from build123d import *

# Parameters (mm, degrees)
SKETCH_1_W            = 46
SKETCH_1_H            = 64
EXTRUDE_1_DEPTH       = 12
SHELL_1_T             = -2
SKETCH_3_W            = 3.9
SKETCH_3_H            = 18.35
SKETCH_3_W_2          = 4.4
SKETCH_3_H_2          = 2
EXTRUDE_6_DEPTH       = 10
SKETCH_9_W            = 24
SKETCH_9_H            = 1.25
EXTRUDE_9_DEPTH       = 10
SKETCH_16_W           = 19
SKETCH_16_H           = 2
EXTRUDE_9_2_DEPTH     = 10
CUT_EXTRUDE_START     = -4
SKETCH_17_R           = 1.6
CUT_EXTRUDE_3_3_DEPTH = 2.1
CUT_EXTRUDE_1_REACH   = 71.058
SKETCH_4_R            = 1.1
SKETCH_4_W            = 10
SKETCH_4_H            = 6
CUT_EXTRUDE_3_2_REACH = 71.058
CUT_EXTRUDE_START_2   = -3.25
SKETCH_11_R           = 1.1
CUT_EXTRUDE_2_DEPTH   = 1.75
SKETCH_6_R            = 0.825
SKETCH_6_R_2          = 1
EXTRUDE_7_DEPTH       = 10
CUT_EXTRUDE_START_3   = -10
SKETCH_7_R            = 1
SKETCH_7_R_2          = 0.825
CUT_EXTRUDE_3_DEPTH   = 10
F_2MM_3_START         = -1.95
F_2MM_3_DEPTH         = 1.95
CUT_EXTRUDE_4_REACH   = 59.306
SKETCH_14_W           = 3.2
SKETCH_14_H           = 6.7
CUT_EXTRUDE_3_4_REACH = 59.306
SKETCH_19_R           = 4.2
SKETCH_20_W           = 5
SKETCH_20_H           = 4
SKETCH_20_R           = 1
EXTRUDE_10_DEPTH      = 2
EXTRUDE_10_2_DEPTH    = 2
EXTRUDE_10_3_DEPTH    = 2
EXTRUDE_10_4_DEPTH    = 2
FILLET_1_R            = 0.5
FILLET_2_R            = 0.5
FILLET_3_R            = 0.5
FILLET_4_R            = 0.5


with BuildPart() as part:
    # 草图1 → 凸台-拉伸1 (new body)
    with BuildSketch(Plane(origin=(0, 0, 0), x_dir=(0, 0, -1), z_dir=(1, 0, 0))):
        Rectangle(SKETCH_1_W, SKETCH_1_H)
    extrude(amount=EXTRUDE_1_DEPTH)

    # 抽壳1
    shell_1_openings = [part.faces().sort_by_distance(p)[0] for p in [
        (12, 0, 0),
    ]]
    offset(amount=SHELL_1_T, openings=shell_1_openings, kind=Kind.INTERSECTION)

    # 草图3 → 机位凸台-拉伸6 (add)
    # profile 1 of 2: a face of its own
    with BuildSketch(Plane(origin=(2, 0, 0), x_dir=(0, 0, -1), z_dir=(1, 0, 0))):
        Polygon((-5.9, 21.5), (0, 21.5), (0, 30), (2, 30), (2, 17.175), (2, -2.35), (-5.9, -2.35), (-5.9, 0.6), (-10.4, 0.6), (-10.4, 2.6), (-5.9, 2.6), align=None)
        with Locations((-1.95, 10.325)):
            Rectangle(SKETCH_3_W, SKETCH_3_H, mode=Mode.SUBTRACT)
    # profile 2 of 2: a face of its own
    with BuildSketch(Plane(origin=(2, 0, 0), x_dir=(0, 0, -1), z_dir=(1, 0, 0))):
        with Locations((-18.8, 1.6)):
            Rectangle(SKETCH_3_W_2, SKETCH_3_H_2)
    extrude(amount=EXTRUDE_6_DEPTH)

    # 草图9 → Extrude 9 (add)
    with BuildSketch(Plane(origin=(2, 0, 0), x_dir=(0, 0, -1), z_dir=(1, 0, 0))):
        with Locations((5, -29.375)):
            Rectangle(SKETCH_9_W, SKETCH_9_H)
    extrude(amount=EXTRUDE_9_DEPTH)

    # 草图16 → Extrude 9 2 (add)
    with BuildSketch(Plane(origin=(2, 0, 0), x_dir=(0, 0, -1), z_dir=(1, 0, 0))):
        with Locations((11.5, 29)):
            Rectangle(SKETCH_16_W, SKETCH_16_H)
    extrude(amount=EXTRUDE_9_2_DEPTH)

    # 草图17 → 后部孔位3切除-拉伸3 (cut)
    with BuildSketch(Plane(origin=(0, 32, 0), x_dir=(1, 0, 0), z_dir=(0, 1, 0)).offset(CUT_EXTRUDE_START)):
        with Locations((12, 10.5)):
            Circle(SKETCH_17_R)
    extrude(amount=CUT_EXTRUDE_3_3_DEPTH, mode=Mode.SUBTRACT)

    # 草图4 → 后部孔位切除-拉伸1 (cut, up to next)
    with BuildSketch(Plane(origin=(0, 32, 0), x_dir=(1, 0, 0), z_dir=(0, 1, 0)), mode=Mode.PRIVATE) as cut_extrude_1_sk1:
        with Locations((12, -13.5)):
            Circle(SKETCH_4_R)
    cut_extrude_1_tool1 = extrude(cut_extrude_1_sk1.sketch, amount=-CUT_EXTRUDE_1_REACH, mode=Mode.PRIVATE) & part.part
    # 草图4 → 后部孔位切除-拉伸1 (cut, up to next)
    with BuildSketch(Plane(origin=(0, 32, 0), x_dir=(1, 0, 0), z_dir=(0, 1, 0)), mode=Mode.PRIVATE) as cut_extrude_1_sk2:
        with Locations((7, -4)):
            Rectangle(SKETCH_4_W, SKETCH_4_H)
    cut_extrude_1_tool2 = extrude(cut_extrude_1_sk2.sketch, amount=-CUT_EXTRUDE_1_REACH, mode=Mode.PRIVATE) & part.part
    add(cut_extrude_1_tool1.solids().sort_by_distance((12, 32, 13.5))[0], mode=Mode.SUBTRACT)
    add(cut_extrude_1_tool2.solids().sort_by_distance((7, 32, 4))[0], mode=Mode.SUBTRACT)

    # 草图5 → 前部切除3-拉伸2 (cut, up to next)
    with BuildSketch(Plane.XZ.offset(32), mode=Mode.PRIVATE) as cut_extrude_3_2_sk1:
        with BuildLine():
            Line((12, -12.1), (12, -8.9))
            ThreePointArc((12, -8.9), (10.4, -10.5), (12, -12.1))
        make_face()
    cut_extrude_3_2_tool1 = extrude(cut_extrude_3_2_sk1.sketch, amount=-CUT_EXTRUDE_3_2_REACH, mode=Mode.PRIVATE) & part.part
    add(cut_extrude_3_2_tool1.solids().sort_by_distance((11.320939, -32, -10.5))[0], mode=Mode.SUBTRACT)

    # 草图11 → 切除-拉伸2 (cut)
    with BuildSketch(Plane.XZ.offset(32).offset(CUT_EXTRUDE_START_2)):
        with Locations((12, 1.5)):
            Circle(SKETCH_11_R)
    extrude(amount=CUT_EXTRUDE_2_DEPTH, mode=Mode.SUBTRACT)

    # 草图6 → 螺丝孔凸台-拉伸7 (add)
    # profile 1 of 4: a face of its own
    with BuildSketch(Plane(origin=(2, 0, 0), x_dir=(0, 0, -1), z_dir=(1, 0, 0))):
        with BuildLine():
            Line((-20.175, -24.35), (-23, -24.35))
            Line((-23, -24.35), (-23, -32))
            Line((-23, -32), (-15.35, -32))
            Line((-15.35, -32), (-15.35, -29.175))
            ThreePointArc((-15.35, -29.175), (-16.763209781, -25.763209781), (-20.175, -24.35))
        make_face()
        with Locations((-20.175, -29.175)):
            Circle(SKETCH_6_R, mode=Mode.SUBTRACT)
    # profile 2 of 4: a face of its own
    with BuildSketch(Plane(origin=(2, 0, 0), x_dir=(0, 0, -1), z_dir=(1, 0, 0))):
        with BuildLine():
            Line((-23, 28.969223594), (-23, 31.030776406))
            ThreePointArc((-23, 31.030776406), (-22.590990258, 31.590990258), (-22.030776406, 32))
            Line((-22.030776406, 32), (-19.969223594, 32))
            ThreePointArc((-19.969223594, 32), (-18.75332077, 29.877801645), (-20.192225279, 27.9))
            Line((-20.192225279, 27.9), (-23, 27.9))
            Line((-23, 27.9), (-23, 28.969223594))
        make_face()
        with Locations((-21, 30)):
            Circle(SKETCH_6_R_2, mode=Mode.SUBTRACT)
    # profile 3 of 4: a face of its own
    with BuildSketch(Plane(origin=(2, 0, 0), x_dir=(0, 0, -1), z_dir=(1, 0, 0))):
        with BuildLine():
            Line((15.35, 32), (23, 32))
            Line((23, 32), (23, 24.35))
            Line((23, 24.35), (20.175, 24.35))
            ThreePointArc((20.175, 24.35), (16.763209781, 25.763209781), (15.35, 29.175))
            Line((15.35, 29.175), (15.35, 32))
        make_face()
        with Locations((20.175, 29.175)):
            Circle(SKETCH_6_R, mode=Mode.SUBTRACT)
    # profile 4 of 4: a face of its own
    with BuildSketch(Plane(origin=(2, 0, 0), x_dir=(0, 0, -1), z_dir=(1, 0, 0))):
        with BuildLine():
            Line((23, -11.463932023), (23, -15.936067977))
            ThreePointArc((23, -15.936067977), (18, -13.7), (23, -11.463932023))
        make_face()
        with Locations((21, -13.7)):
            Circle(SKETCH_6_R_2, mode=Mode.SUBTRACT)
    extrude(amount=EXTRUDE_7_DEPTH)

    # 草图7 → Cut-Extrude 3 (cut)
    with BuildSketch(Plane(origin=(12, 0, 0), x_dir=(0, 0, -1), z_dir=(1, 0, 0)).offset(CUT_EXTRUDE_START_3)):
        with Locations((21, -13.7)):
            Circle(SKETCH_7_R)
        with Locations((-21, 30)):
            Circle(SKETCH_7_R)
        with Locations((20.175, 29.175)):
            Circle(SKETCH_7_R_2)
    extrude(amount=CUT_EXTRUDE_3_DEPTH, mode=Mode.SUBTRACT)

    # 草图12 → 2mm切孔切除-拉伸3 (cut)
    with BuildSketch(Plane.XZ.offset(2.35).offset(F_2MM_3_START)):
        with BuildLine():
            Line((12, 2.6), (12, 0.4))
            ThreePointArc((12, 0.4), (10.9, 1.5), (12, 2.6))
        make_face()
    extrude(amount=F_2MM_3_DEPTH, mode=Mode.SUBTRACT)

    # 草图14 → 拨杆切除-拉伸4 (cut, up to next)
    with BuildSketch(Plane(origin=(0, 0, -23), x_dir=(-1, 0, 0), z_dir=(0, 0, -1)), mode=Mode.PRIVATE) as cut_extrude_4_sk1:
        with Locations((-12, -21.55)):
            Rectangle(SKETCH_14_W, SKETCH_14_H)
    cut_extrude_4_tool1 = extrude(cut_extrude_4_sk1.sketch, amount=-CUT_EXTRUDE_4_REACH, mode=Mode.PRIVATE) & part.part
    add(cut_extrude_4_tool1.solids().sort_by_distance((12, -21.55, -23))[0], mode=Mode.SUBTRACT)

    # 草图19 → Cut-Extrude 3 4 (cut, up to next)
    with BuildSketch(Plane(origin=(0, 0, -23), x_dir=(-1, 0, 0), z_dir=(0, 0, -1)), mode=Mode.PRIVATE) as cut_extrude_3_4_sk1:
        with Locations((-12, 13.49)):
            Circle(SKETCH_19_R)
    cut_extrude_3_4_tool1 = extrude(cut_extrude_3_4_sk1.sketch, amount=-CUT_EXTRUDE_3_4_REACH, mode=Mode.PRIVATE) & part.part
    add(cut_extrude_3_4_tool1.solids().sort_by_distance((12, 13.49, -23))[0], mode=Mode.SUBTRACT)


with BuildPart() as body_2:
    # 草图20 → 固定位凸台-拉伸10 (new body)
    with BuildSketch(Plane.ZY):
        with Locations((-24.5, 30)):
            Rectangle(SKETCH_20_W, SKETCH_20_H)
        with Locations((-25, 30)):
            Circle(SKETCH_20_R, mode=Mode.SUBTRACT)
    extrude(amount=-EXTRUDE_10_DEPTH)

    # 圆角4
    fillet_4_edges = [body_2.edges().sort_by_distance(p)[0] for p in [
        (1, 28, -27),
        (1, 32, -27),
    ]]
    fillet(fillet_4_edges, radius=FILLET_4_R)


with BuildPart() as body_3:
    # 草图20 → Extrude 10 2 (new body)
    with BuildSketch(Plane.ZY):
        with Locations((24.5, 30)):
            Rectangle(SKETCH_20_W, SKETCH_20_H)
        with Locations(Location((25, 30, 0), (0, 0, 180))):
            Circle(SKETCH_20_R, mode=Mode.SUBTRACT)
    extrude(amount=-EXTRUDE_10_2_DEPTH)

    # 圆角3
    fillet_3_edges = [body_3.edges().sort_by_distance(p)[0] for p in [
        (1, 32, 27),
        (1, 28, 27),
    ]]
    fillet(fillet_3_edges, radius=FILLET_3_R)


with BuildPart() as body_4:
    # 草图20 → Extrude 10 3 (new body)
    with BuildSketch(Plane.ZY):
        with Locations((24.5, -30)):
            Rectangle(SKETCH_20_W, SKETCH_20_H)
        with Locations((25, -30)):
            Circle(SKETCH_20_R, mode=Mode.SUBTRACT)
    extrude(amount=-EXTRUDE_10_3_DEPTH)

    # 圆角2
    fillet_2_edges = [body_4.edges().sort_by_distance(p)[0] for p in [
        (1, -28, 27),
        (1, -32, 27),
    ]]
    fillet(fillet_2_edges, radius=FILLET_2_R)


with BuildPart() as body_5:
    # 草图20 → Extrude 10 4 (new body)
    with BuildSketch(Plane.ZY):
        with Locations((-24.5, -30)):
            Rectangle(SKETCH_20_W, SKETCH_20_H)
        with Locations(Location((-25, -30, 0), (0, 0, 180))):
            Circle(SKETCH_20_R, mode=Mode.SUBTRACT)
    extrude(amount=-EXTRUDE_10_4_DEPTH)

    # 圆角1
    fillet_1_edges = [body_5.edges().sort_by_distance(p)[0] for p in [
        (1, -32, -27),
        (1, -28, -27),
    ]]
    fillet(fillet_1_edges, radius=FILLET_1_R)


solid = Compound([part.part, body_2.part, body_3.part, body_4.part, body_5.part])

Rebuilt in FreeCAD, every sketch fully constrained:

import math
import FreeCAD as App
import Part
import Sketcher

V = App.Vector
Q = App.Units.Quantity


def edges_at(feature, points):
    """Names of the edges that pass closest to the given points."""
    edges = feature.Shape.Edges
    near = lambda p: min(range(len(edges)), key=lambda i: edges[i].distToShape(Part.Vertex(*p))[0])
    return sorted({f"Edge{near(p) + 1}" for p in points})


def faces_at(feature, points):
    """Names of the faces that lie closest to the given points."""
    faces = feature.Shape.Faces
    near = lambda p: min(range(len(faces)), key=lambda i: faces[i].distToShape(Part.Vertex(*p))[0])
    return sorted({f"Face{near(p) + 1}" for p in points})


def add_polygon(sketch, points):
    """Adds a closed chain of lines whose ends are joined by coincident constraints."""
    first, n = sketch.GeometryCount, len(points)
    for a, b in zip(points, points[1:] + points[:1]):
        sketch.addGeometry(Part.LineSegment(App.Vector(*a, 0), App.Vector(*b, 0)), False)
    for i in range(n):
        sketch.addConstraint(Sketcher.Constraint("Coincident", first + i, 2, first + (i + 1) % n, 1))

doc = App.newDocument("Part")
body = doc.addObject("PartDesign::Body", "Body")

sketch1 = doc.addObject("Sketcher::SketchObject", "Sketch")
body.addObject(sketch1)
sketch1.AttachmentSupport = (doc.YZ_Plane, [""])
sketch1.MapMode = "FlatFace"
add_polygon(sketch1, [(32, 23), (-32, 23), (-32, -23), (32, -23)])
sketch1.addConstraint([
    Sketcher.Constraint("Horizontal", 0),
    Sketcher.Constraint("Vertical", 1),
    Sketcher.Constraint("Horizontal", 2),
    Sketcher.Constraint("Vertical", 3),
    Sketcher.Constraint("Symmetric", 0, 2, 2, 2, -1, 1),
    Sketcher.Constraint("DistanceX", 0, 2, 0, 1, Q("64 mm")),
    Sketcher.Constraint("DistanceY", 1, 2, 1, 1, Q("46 mm")),
])
pad1 = doc.addObject("PartDesign::Pad", "Pad")
body.addObject(pad1)
pad1.Profile = sketch1
pad1.Length = 12
doc.recompute()

thickness = doc.addObject("PartDesign::Thickness", "Thickness")
body.addObject(thickness)
thickness.Base = (pad1, faces_at(pad1, [(12, 0, 0)]))
thickness.Value = 2
thickness.Reversed = True
thickness.Join = "Intersection"

sketch2 = doc.addObject("Sketcher::SketchObject", "Sketch001")
body.addObject(sketch2)
sketch2.AttachmentSupport = (doc.YZ_Plane, [""])
sketch2.MapMode = "FlatFace"
sketch2.AttachmentOffset = App.Placement(V(0, 0, 2), App.Rotation())
add_polygon(sketch2, [(21.5, 0), (21.5, 5.9), (2.6, 5.9), (2.6, 10.4), (0.6, 10.4), (0.6, 5.9), (-2.4, 5.9), (-2.4, -2), (30, -2), (30, 0)])
add_polygon(sketch2, [(1.1, 3.9), (19.5, 3.9), (19.5, 0), (1.1, 0)])
add_polygon(sketch2, [(2.6, 21), (0.6, 21), (0.6, 16.6), (2.6, 16.6)])
sketch2.addConstraint([
    Sketcher.Constraint("Vertical", 0),
    Sketcher.Constraint("Horizontal", 1),
    Sketcher.Constraint("Vertical", 2),
    Sketcher.Constraint("Horizontal", 3),
    Sketcher.Constraint("Vertical", 4),
    Sketcher.Constraint("Horizontal", 5),
    Sketcher.Constraint("Vertical", 6),
    Sketcher.Constraint("Horizontal", 7),
    Sketcher.Constraint("Vertical", 8),
    Sketcher.Constraint("Horizontal", 9),
    Sketcher.Constraint("Horizontal", 10),
    Sketcher.Constraint("Vertical", 11),
    Sketcher.Constraint("Horizontal", 12),
    Sketcher.Constraint("Vertical", 13),
    Sketcher.Constraint("Horizontal", 14),
    Sketcher.Constraint("Vertical", 15),
    Sketcher.Constraint("Horizontal", 16),
    Sketcher.Constraint("Vertical", 17),
    Sketcher.Constraint("PointOnObject", 8, 2, -1),
    Sketcher.Constraint("PointOnObject", 11, 2, -1),
    Sketcher.Constraint("Horizontal", 1, 2, 4, 2),
    Sketcher.Constraint("Vertical", 4, 2, 14, 2),
    Sketcher.Constraint("Vertical", 2, 2, 16, 2),
    Sketcher.Constraint("Equal", 16, 8),
    Sketcher.Constraint("DistanceX", 3, 2, 3, 1, Q("2 mm")),
    Sketcher.Constraint("DistanceX", 1, 2, 1, 1, Q("18.9 mm")),
    Sketcher.Constraint("DistanceX", 9, 2, 9, 1, Q("8.5 mm")),
    Sketcher.Constraint("DistanceY", 0, 1, 0, 2, Q("5.9 mm")),
    Sketcher.Constraint("DistanceY", 2, 1, 2, 2, Q("4.5 mm")),
    Sketcher.Constraint("DistanceY", 11, 2, 11, 1, Q("3.9 mm")),
    Sketcher.Constraint("DistanceY", 15, 2, 15, 1, Q("4.4 mm")),
    Sketcher.Constraint("DistanceX", -1, 1, 7, 2, Q("30 mm")),
    Sketcher.Constraint("DistanceY", -1, 1, 14, 2, Q("21 mm")),
    Sketcher.Constraint("DistanceX", 10, 2, 0, 2, Q("2 mm")),
    Sketcher.Constraint("DistanceX", 5, 2, 5, 1, Q("2.95 mm")),
    Sketcher.Constraint("DistanceX", 10, 1, 10, 2, Q("18.35 mm")),
])
pad2 = doc.addObject("PartDesign::Pad", "Pad001")
body.addObject(pad2)
pad2.Profile = sketch2
pad2.Length = 10

sketch3 = doc.addObject("Sketcher::SketchObject", "Sketch002")
body.addObject(sketch3)
sketch3.AttachmentSupport = (doc.YZ_Plane, [""])
sketch3.MapMode = "FlatFace"
sketch3.AttachmentOffset = App.Placement(V(0, 0, 2), App.Rotation())
add_polygon(sketch3, [(-28.8, 7), (-30, 7), (-30, -17), (-28.8, -17)])
sketch3.addConstraint([
    Sketcher.Constraint("Horizontal", 0),
    Sketcher.Constraint("Vertical", 1),
    Sketcher.Constraint("Horizontal", 2),
    Sketcher.Constraint("Vertical", 3),
    Sketcher.Constraint("DistanceY", 1, 2, 1, 1, Q("24 mm")),
    Sketcher.Constraint("DistanceX", 0, 2, -1, 1, Q("30 mm")),
    Sketcher.Constraint("DistanceY", -1, 1, 0, 2, Q("7 mm")),
    Sketcher.Constraint("DistanceX", 0, 2, 0, 1, Q("1.25 mm")),
])
pad3 = doc.addObject("PartDesign::Pad", "Pad002")
body.addObject(pad3)
pad3.Profile = sketch3
pad3.Length = 10

sketch4 = doc.addObject("Sketcher::SketchObject", "Sketch003")
body.addObject(sketch4)
sketch4.AttachmentSupport = (doc.YZ_Plane, [""])
sketch4.MapMode = "FlatFace"
sketch4.AttachmentOffset = App.Placement(V(0, 0, 2), App.Rotation())
add_polygon(sketch4, [(30, -2), (28, -2), (28, -21), (30, -21)])
sketch4.addConstraint([
    Sketcher.Constraint("Horizontal", 0),
    Sketcher.Constraint("Vertical", 1),
    Sketcher.Constraint("Horizontal", 2),
    Sketcher.Constraint("Vertical", 3),
    Sketcher.Constraint("DistanceX", 0, 2, 0, 1, Q("2 mm")),
    Sketcher.Constraint("DistanceY", 1, 2, 1, 1, Q("19 mm")),
    Sketcher.Constraint("DistanceX", -1, 1, 0, 2, Q("28 mm")),
    Sketcher.Constraint("DistanceY", 0, 2, -1, 1, Q("2 mm")),
])
pad4 = doc.addObject("PartDesign::Pad", "Pad003")
body.addObject(pad4)
pad4.Profile = sketch4
pad4.Length = 10

sketch5 = doc.addObject("Sketcher::SketchObject", "Sketch004")
body.addObject(sketch5)
sketch5.AttachmentSupport = (doc.XZ_Plane, [""])
sketch5.MapMode = "FlatFace"
sketch5.AttachmentOffset = App.Placement(V(0, 0, -28), App.Rotation())
sketch5.addGeometry(Part.Circle(V(12, -10.5, 0), V(0, 0, 1), 1.6), False)
sketch5.addConstraint([
    Sketcher.Constraint("Diameter", 0, Q("3.2 mm")),
    Sketcher.Constraint("DistanceX", -1, 1, 0, 3, Q("12 mm")),
    Sketcher.Constraint("DistanceY", 0, 3, -1, 1, Q("10.5 mm")),
])
pocket1 = doc.addObject("PartDesign::Pocket", "Pocket")
body.addObject(pocket1)
pocket1.Profile = sketch5
pocket1.Length = 2.1

sketch6 = doc.addObject("Sketcher::SketchObject", "Sketch005")
body.addObject(sketch6)
sketch6.AttachmentSupport = (doc.XZ_Plane, [""])
sketch6.MapMode = "FlatFace"
sketch6.AttachmentOffset = App.Placement(V(0, 0, -32), App.Rotation())
sketch6.addGeometry(Part.Circle(V(12, 13.5, 0), V(0, 0, 1), 1.1), False)
sketch6.addConstraint([
    Sketcher.Constraint("Diameter", 0, Q("2.2 mm")),
    Sketcher.Constraint("DistanceX", -1, 1, 0, 3, Q("12 mm")),
    Sketcher.Constraint("DistanceY", -1, 1, 0, 3, Q("13.5 mm")),
])
pocket2 = doc.addObject("PartDesign::Pocket", "Pocket001")
body.addObject(pocket2)
pocket2.Profile = sketch6
pocket2.Type = "UpToFirst"
pocket2.Reversed = True

sketch7 = doc.addObject("Sketcher::SketchObject", "Sketch006")
body.addObject(sketch7)
sketch7.AttachmentSupport = (doc.XZ_Plane, [""])
sketch7.MapMode = "FlatFace"
sketch7.AttachmentOffset = App.Placement(V(0, 0, -32), App.Rotation())
add_polygon(sketch7, [(2, 1), (2, 7), (12, 7), (12, 1)])
sketch7.addConstraint([
    Sketcher.Constraint("Vertical", 0),
    Sketcher.Constraint("Horizontal", 1),
    Sketcher.Constraint("Vertical", 2),
    Sketcher.Constraint("Horizontal", 3),
    Sketcher.Constraint("DistanceX", 1, 1, 1, 2, Q("10 mm")),
    Sketcher.Constraint("DistanceY", 0, 1, 0, 2, Q("6 mm")),
    Sketcher.Constraint("DistanceX", -1, 1, 0, 2, Q("2 mm")),
    Sketcher.Constraint("DistanceY", -1, 1, 0, 2, Q("7 mm")),
])
pocket3 = doc.addObject("PartDesign::Pocket", "Pocket002")
body.addObject(pocket3)
pocket3.Profile = sketch7
pocket3.Type = "UpToFirst"
pocket3.Reversed = True

sketch8 = doc.addObject("Sketcher::SketchObject", "Sketch007")
body.addObject(sketch8)
sketch8.AttachmentSupport = (doc.XZ_Plane, [""])
sketch8.MapMode = "FlatFace"
sketch8.AttachmentOffset = App.Placement(V(0, 0, 32), App.Rotation())
sketch8.addGeometry([
    Part.LineSegment(V(12, -12.1, 0), V(12, -8.9, 0)),
    Part.ArcOfCircle(Part.Circle(V(12, -10.5, 0), V(0, 0, 1), 1.6), math.radians(90), math.radians(270)),
], False)
sketch8.addConstraint([
    Sketcher.Constraint("Coincident", 0, 1, 1, 2),
    Sketcher.Constraint("Coincident", 1, 1, 0, 2),
    Sketcher.Constraint("Vertical", 0),
    Sketcher.Constraint("Vertical", 1, 3, 0, 1),
    Sketcher.Constraint("Radius", 1, Q("1.6 mm")),
    Sketcher.Constraint("DistanceX", -1, 1, 1, 3, Q("12 mm")),
    Sketcher.Constraint("DistanceY", 1, 3, -1, 1, Q("10.5 mm")),
])
pocket4 = doc.addObject("PartDesign::Pocket", "Pocket003")
body.addObject(pocket4)
pocket4.Profile = sketch8
pocket4.Type = "UpToFirst"

sketch9 = doc.addObject("Sketcher::SketchObject", "Sketch008")
body.addObject(sketch9)
sketch9.AttachmentSupport = (doc.XZ_Plane, [""])
sketch9.MapMode = "FlatFace"
sketch9.AttachmentOffset = App.Placement(V(0, 0, 28.75), App.Rotation())
sketch9.addGeometry(Part.Circle(V(12, 1.5, 0), V(0, 0, 1), 1.1), False)
sketch9.addConstraint([
    Sketcher.Constraint("Diameter", 0, Q("2.2 mm")),
    Sketcher.Constraint("DistanceX", -1, 1, 0, 3, Q("12 mm")),
    Sketcher.Constraint("DistanceY", -1, 1, 0, 3, Q("1.5 mm")),
])
pocket5 = doc.addObject("PartDesign::Pocket", "Pocket004")
body.addObject(pocket5)
pocket5.Profile = sketch9
pocket5.Length = 1.75
pocket5.Reversed = True

sketch10 = doc.addObject("Sketcher::SketchObject", "Sketch009")
body.addObject(sketch10)
sketch10.AttachmentSupport = (doc.YZ_Plane, [""])
sketch10.MapMode = "FlatFace"
sketch10.AttachmentOffset = App.Placement(V(0, 0, 2), App.Rotation())
sketch10.addGeometry([
    Part.LineSegment(V(-24.4, 20.2, 0), V(-24.4, 23, 0)),
    Part.LineSegment(V(-24.4, 23, 0), V(-32, 23, 0)),
    Part.LineSegment(V(-32, 23, 0), V(-32, 15.3, 0)),
    Part.LineSegment(V(-32, 15.3, 0), V(-29.2, 15.3, 0)),
    Part.ArcOfCircle(Part.Circle(V(-29.2, 20.2, 0), V(0, 0, 1), 4.8), math.radians(-90), math.radians(0)),
    Part.Circle(V(-29.2, 20.2, 0), V(0, 0, 1), 0.8),
    Part.ArcOfCircle(Part.Circle(V(30, 21, 0), V(0, 0, 1), 2.2), math.radians(27), math.radians(63)),
    Part.LineSegment(V(31, 23, 0), V(27.9, 23, 0)),
    Part.LineSegment(V(27.9, 23, 0), V(27.9, 20.2, 0)),
    Part.ArcOfCircle(Part.Circle(V(30, 21, 0), V(0, 0, 1), 2.2), math.radians(-159), math.radians(-27)),
    Part.LineSegment(V(32, 20, 0), V(32, 22, 0)),
    Part.Circle(V(30, 21, 0), V(0, 0, 1), 1),
    Part.LineSegment(V(32, -23, 0), V(32, -15.3, 0)),
    Part.LineSegment(V(32, -15.3, 0), V(29.2, -15.3, 0)),
    Part.ArcOfCircle(Part.Circle(V(29.2, -20.2, 0), V(0, 0, 1), 4.8), math.radians(90), math.radians(180)),
    Part.LineSegment(V(24.4, -20.2, 0), V(24.4, -23, 0)),
    Part.LineSegment(V(24.4, -23, 0), V(32, -23, 0)),
    Part.Circle(V(29.2, -20.2, 0), V(0, 0, 1), 0.8),
    Part.LineSegment(V(-15.9, -23, 0), V(-11.5, -23, 0)),
    Part.ArcOfCircle(Part.Circle(V(-13.7, -21, 0), V(0, 0, 1), 3), math.radians(-42), math.radians(222)),
    Part.Circle(V(-13.7, -21, 0), V(0, 0, 1), 1),
], False)
sketch10.addConstraint([
    Sketcher.Constraint("Coincident", 0, 2, 1, 1),
    Sketcher.Constraint("Coincident", 1, 2, 2, 1),
    Sketcher.Constraint("Coincident", 2, 2, 3, 1),
    Sketcher.Constraint("Tangent", 3, 2, 4, 1),
    Sketcher.Constraint("Tangent", 4, 2, 0, 1),
    Sketcher.Constraint("Coincident", 6, 2, 7, 1),
    Sketcher.Constraint("Coincident", 7, 2, 8, 1),
    Sketcher.Constraint("Coincident", 8, 2, 9, 1),
    Sketcher.Constraint("Coincident", 9, 2, 10, 1),
    Sketcher.Constraint("Coincident", 10, 2, 6, 1),
    Sketcher.Constraint("Coincident", 12, 2, 13, 1),
    Sketcher.Constraint("Tangent", 13, 2, 14, 1),
    Sketcher.Constraint("Tangent", 14, 2, 15, 1),
    Sketcher.Constraint("Coincident", 15, 2, 16, 1),
    Sketcher.Constraint("Coincident", 16, 2, 12, 1),
    Sketcher.Constraint("Coincident", 18, 1, 19, 2),
    Sketcher.Constraint("Coincident", 19, 1, 18, 2),
    Sketcher.Constraint("Vertical", 0),
    Sketcher.Constraint("Horizontal", 1),
    Sketcher.Constraint("Vertical", 2),
    Sketcher.Constraint("Horizontal", 3),
    Sketcher.Constraint("Horizontal", 7),
    Sketcher.Constraint("Vertical", 8),
    Sketcher.Constraint("Vertical", 10),
    Sketcher.Constraint("Vertical", 12),
    Sketcher.Constraint("Horizontal", 13),
    Sketcher.Constraint("Vertical", 15),
    Sketcher.Constraint("Horizontal", 16),
    Sketcher.Constraint("Horizontal", 18),
    Sketcher.Constraint("Coincident", 5, 3, 4, 3),
    Sketcher.Constraint("Coincident", 9, 3, 6, 3),
    Sketcher.Constraint("Coincident", 11, 3, 6, 3),
    Sketcher.Constraint("Coincident", 17, 3, 14, 3),
    Sketcher.Constraint("Coincident", 20, 3, 19, 3),
    Sketcher.Constraint("Equal", 6, 9),
    Sketcher.Constraint("Equal", 4, 14),
    Sketcher.Constraint("Equal", 5, 17),
    Sketcher.Constraint("Equal", 11, 20),
    Sketcher.Constraint("Symmetric", 4, 3, 14, 3, -1, 1),
    Sketcher.Constraint("Symmetric", 1, 2, 16, 2, -1, 1),
    Sketcher.Constraint("Horizontal", 1, 2, 6, 2),
    Sketcher.Constraint("Horizontal", 16, 2, 18, 1),
    Sketcher.Constraint("Vertical", 10, 2, 12, 2),
    Sketcher.Constraint("Equal", 13, 0),
    Sketcher.Constraint("Diameter", 11, Q("2 mm")),
    Sketcher.Constraint("Radius", 19, Q("3 mm")),
    Sketcher.Constraint("Diameter", 5, Q("1.65 mm")),
    Sketcher.Constraint("Radius", 6, Q("2.25 mm")),
    Sketcher.Constraint("DistanceX", -1, 1, 6, 3, Q("30 mm")),
    Sketcher.Constraint("DistanceY", -1, 1, 6, 3, Q("21 mm")),
    Sketcher.Constraint("DistanceY", 19, 3, -1, 1, Q("21 mm")),
    Sketcher.Constraint("DistanceY", -1, 1, 0, 2, Q("23 mm")),
    Sketcher.Constraint("DistanceX", 1, 2, -1, 1, Q("32 mm")),
    Sketcher.Constraint("Radius", 4, Q("4.825 mm")),
    Sketcher.Constraint("DistanceX", 1, 2, 1, 1, Q("7.65 mm")),
    Sketcher.Constraint("DistanceX", 19, 3, -1, 1, Q("13.7 mm")),
    Sketcher.Constraint("DistanceX", -1, 1, 7, 2, Q("27.9 mm")),
])
pad5 = doc.addObject("PartDesign::Pad", "Pad004")
body.addObject(pad5)
pad5.Profile = sketch10
pad5.Length = 10

sketch11 = doc.addObject("Sketcher::SketchObject", "Sketch010")
body.addObject(sketch11)
sketch11.AttachmentSupport = (doc.YZ_Plane, [""])
sketch11.MapMode = "FlatFace"
sketch11.AttachmentOffset = App.Placement(V(0, 0, 2), App.Rotation())
sketch11.addGeometry([
    Part.Circle(V(-13.7, -21, 0), V(0, 0, 1), 1),
    Part.Circle(V(30, 21, 0), V(0, 0, 1), 1),
    Part.Circle(V(29.2, -20.2, 0), V(0, 0, 1), 0.8),
], False)
sketch11.addConstraint([
    Sketcher.Constraint("Equal", 0, 1),
    Sketcher.Constraint("Diameter", 0, Q("2 mm")),
    Sketcher.Constraint("Diameter", 2, Q("1.65 mm")),
    Sketcher.Constraint("DistanceY", 0, 3, -1, 1, Q("21 mm")),
    Sketcher.Constraint("DistanceX", -1, 1, 1, 3, Q("30 mm")),
    Sketcher.Constraint("DistanceY", -1, 1, 1, 3, Q("21 mm")),
    Sketcher.Constraint("DistanceX", 0, 3, -1, 1, Q("13.7 mm")),
    Sketcher.Constraint("DistanceX", -1, 1, 2, 3, Q("29.175 mm")),
    Sketcher.Constraint("DistanceY", 2, 3, -1, 1, Q("20.175 mm")),
])
pocket6 = doc.addObject("PartDesign::Pocket", "Pocket005")
body.addObject(pocket6)
pocket6.Profile = sketch11
pocket6.Length = 10
pocket6.Reversed = True

sketch12 = doc.addObject("Sketcher::SketchObject", "Sketch011")
body.addObject(sketch12)
sketch12.AttachmentSupport = (doc.XZ_Plane, [""])
sketch12.MapMode = "FlatFace"
sketch12.AttachmentOffset = App.Placement(V(0, 0, 0.4), App.Rotation())
sketch12.addGeometry([
    Part.LineSegment(V(12, 0.4, 0), V(12, 2.6, 0)),
    Part.ArcOfCircle(Part.Circle(V(12, 1.5, 0), V(0, 0, 1), 1.1), math.radians(90), math.radians(270)),
], False)
sketch12.addConstraint([
    Sketcher.Constraint("Coincident", 0, 1, 1, 2),
    Sketcher.Constraint("Coincident", 1, 1, 0, 2),
    Sketcher.Constraint("Vertical", 0),
    Sketcher.Constraint("Vertical", 1, 3, 0, 1),
    Sketcher.Constraint("Radius", 1, Q("1.1 mm")),
    Sketcher.Constraint("DistanceX", -1, 1, 1, 3, Q("12 mm")),
    Sketcher.Constraint("DistanceY", -1, 1, 1, 3, Q("1.5 mm")),
])
pocket7 = doc.addObject("PartDesign::Pocket", "Pocket006")
body.addObject(pocket7)
pocket7.Profile = sketch12
pocket7.Length = 1.95
pocket7.Reversed = True

sketch13 = doc.addObject("Sketcher::SketchObject", "Sketch012")
body.addObject(sketch13)
sketch13.AttachmentSupport = (doc.XY_Plane, [""])
sketch13.MapMode = "FlatFace"
sketch13.AttachmentOffset = App.Placement(V(0, 0, -23), App.Rotation())
add_polygon(sketch13, [(13.6, -18.2), (13.6, -24.9), (10.4, -24.9), (10.4, -18.2)])
sketch13.addConstraint([
    Sketcher.Constraint("Vertical", 0),
    Sketcher.Constraint("Horizontal", 1),
    Sketcher.Constraint("Vertical", 2),
    Sketcher.Constraint("Horizontal", 3),
    Sketcher.Constraint("DistanceX", 1, 2, 1, 1, Q("3.2 mm")),
    Sketcher.Constraint("DistanceY", 0, 2, 0, 1, Q("6.7 mm")),
    Sketcher.Constraint("DistanceX", -1, 1, 0, 2, Q("13.6 mm")),
    Sketcher.Constraint("DistanceY", 0, 2, -1, 1, Q("24.9 mm")),
])
pocket8 = doc.addObject("PartDesign::Pocket", "Pocket007")
body.addObject(pocket8)
pocket8.Profile = sketch13
pocket8.Type = "UpToFirst"
pocket8.Reversed = True

sketch14 = doc.addObject("Sketcher::SketchObject", "Sketch013")
body.addObject(sketch14)
sketch14.AttachmentSupport = (doc.XY_Plane, [""])
sketch14.MapMode = "FlatFace"
sketch14.AttachmentOffset = App.Placement(V(0, 0, -23), App.Rotation())
sketch14.addGeometry(Part.Circle(V(12, 13.5, 0), V(0, 0, 1), 4.2), False)
sketch14.addConstraint([
    Sketcher.Constraint("Diameter", 0, Q("8.4 mm")),
    Sketcher.Constraint("DistanceX", -1, 1, 0, 3, Q("12 mm")),
    Sketcher.Constraint("DistanceY", -1, 1, 0, 3, Q("13.49 mm")),
])
pocket9 = doc.addObject("PartDesign::Pocket", "Pocket008")
body.addObject(pocket9)
pocket9.Profile = sketch14
pocket9.Type = "UpToFirst"
pocket9.Reversed = True
body2 = doc.addObject("PartDesign::Body", "Body001")

sketch15 = doc.addObject("Sketcher::SketchObject", "Sketch014")
body2.addObject(sketch15)
sketch15.AttachmentSupport = (doc.getObject("YZ_Plane001"), [""])
sketch15.MapMode = "FlatFace"
add_polygon(sketch15, [(32, -27), (28, -27), (28, -22), (32, -22)])
sketch15.addGeometry(Part.Circle(V(30, -25, 0), V(0, 0, 1), 1), False)
sketch15.addConstraint([
    Sketcher.Constraint("Horizontal", 0),
    Sketcher.Constraint("Vertical", 1),
    Sketcher.Constraint("Horizontal", 2),
    Sketcher.Constraint("Vertical", 3),
    Sketcher.Constraint("Diameter", 4, Q("2 mm")),
    Sketcher.Constraint("DistanceX", 0, 2, 0, 1, Q("4 mm")),
    Sketcher.Constraint("DistanceY", 1, 1, 1, 2, Q("5 mm")),
    Sketcher.Constraint("DistanceX", -1, 1, 4, 3, Q("30 mm")),
    Sketcher.Constraint("DistanceY", 4, 3, -1, 1, Q("25 mm")),
    Sketcher.Constraint("DistanceX", -1, 1, 0, 2, Q("28 mm")),
    Sketcher.Constraint("DistanceY", 0, 2, -1, 1, Q("27 mm")),
])
pad6 = doc.addObject("PartDesign::Pad", "Pad005")
body2.addObject(pad6)
pad6.Profile = sketch15
pad6.Length = 2
doc.recompute()

fillet = doc.addObject("PartDesign::Fillet", "Fillet")
body2.addObject(fillet)
fillet.Base = (pad6, edges_at(pad6, [(1, 28, -27), (1, 32, -27)]))
fillet.Radius = 0.5
body3 = doc.addObject("PartDesign::Body", "Body002")

sketch16 = doc.addObject("Sketcher::SketchObject", "Sketch015")
body3.addObject(sketch16)
sketch16.AttachmentSupport = (doc.getObject("YZ_Plane002"), [""])
sketch16.MapMode = "FlatFace"
add_polygon(sketch16, [(32, 22), (28, 22), (28, 27), (32, 27)])
sketch16.addGeometry(Part.Circle(V(30, 25, 0), V(0, 0, 1), 1), False)
sketch16.addConstraint([
    Sketcher.Constraint("Horizontal", 0),
    Sketcher.Constraint("Vertical", 1),
    Sketcher.Constraint("Horizontal", 2),
    Sketcher.Constraint("Vertical", 3),
    Sketcher.Constraint("Diameter", 4, Q("2 mm")),
    Sketcher.Constraint("DistanceX", 0, 2, 0, 1, Q("4 mm")),
    Sketcher.Constraint("DistanceY", 1, 1, 1, 2, Q("5 mm")),
    Sketcher.Constraint("DistanceX", -1, 1, 4, 3, Q("30 mm")),
    Sketcher.Constraint("DistanceY", -1, 1, 4, 3, Q("25 mm")),
    Sketcher.Constraint("DistanceX", -1, 1, 0, 2, Q("28 mm")),
    Sketcher.Constraint("DistanceY", -1, 1, 0, 2, Q("22 mm")),
])
pad7 = doc.addObject("PartDesign::Pad", "Pad006")
body3.addObject(pad7)
pad7.Profile = sketch16
pad7.Length = 2
doc.recompute()

fillet2 = doc.addObject("PartDesign::Fillet", "Fillet001")
body3.addObject(fillet2)
fillet2.Base = (pad7, edges_at(pad7, [(1, 32, 27), (1, 28, 27)]))
fillet2.Radius = 0.5
body4 = doc.addObject("PartDesign::Body", "Body003")

sketch17 = doc.addObject("Sketcher::SketchObject", "Sketch016")
body4.addObject(sketch17)
sketch17.AttachmentSupport = (doc.getObject("YZ_Plane003"), [""])
sketch17.MapMode = "FlatFace"
add_polygon(sketch17, [(-28, 22), (-32, 22), (-32, 27), (-28, 27)])
sketch17.addGeometry(Part.Circle(V(-30, 25, 0), V(0, 0, 1), 1), False)
sketch17.addConstraint([
    Sketcher.Constraint("Horizontal", 0),
    Sketcher.Constraint("Vertical", 1),
    Sketcher.Constraint("Horizontal", 2),
    Sketcher.Constraint("Vertical", 3),
    Sketcher.Constraint("Diameter", 4, Q("2 mm")),
    Sketcher.Constraint("DistanceX", 0, 2, 0, 1, Q("4 mm")),
    Sketcher.Constraint("DistanceY", 1, 1, 1, 2, Q("5 mm")),
    Sketcher.Constraint("DistanceX", 4, 3, -1, 1, Q("30 mm")),
    Sketcher.Constraint("DistanceY", -1, 1, 4, 3, Q("25 mm")),
    Sketcher.Constraint("DistanceX", 0, 2, -1, 1, Q("32 mm")),
    Sketcher.Constraint("DistanceY", -1, 1, 0, 2, Q("22 mm")),
])
pad8 = doc.addObject("PartDesign::Pad", "Pad007")
body4.addObject(pad8)
pad8.Profile = sketch17
pad8.Length = 2
doc.recompute()

fillet3 = doc.addObject("PartDesign::Fillet", "Fillet002")
body4.addObject(fillet3)
fillet3.Base = (pad8, edges_at(pad8, [(1, -28, 27), (1, -32, 27)]))
fillet3.Radius = 0.5
body5 = doc.addObject("PartDesign::Body", "Body004")

sketch18 = doc.addObject("Sketcher::SketchObject", "Sketch017")
body5.addObject(sketch18)
sketch18.AttachmentSupport = (doc.getObject("YZ_Plane004"), [""])
sketch18.MapMode = "FlatFace"
add_polygon(sketch18, [(-28, -27), (-32, -27), (-32, -22), (-28, -22)])
sketch18.addGeometry(Part.Circle(V(-30, -25, 0), V(0, 0, 1), 1), False)
sketch18.addConstraint([
    Sketcher.Constraint("Horizontal", 0),
    Sketcher.Constraint("Vertical", 1),
    Sketcher.Constraint("Horizontal", 2),
    Sketcher.Constraint("Vertical", 3),
    Sketcher.Constraint("Diameter", 4, Q("2 mm")),
    Sketcher.Constraint("DistanceX", 0, 2, 0, 1, Q("4 mm")),
    Sketcher.Constraint("DistanceY", 1, 1, 1, 2, Q("5 mm")),
    Sketcher.Constraint("DistanceX", 4, 3, -1, 1, Q("30 mm")),
    Sketcher.Constraint("DistanceY", 4, 3, -1, 1, Q("25 mm")),
    Sketcher.Constraint("DistanceX", 0, 2, -1, 1, Q("32 mm")),
    Sketcher.Constraint("DistanceY", 0, 2, -1, 1, Q("27 mm")),
])
pad9 = doc.addObject("PartDesign::Pad", "Pad008")
body5.addObject(pad9)
pad9.Profile = sketch18
pad9.Length = 2
doc.recompute()

fillet4 = doc.addObject("PartDesign::Fillet", "Fillet003")
body5.addObject(fillet4)
fillet4.Base = (pad9, edges_at(pad9, [(1, -32, -27), (1, -28, -27)]))
fillet4.Radius = 0.5

doc.recompute()
